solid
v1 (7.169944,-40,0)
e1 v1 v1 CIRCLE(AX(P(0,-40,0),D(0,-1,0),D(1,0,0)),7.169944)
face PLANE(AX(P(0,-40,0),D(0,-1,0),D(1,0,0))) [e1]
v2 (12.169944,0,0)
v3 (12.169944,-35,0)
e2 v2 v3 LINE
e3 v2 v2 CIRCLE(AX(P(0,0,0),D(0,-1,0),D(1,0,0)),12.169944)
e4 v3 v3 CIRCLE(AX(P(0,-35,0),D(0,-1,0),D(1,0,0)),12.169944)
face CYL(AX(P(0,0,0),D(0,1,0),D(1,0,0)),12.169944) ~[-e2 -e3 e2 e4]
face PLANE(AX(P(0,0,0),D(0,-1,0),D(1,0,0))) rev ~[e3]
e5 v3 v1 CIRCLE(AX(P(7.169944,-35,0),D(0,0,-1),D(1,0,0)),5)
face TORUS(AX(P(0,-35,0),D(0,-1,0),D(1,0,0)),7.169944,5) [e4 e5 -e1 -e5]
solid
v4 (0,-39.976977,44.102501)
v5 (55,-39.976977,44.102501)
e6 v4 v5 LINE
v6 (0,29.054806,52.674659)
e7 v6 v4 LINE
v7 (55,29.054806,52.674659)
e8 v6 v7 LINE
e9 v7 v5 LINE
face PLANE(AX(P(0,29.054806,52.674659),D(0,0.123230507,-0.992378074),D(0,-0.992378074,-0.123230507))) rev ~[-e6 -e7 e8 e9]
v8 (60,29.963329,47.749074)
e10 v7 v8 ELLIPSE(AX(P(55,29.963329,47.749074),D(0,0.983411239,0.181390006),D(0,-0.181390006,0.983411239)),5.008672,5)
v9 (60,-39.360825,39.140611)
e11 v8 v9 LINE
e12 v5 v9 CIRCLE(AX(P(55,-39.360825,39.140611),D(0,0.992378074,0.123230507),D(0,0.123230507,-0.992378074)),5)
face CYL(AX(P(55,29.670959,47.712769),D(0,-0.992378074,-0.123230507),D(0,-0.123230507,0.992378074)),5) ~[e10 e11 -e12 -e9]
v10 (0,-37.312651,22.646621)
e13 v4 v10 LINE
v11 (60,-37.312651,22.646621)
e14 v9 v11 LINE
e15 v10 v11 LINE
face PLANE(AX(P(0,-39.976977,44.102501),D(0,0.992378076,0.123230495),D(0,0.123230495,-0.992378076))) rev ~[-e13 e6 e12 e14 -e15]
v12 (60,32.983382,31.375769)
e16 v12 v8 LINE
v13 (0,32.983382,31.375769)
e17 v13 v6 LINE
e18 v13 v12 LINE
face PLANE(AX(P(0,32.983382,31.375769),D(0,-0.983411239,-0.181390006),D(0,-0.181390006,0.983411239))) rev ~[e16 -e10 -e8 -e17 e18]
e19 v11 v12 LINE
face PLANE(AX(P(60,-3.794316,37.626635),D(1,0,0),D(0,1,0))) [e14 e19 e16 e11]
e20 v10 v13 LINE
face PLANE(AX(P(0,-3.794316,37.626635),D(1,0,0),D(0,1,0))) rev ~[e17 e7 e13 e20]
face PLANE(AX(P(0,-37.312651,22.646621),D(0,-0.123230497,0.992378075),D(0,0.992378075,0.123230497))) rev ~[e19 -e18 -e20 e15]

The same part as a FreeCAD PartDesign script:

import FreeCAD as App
import Part
import Sketcher


def edges_at(feature, points):
    """Names of the edges that pass closest to the given points."""
    edges = feature.Shape.Edges
    near = lambda p: min(range(len(edges)), key=lambda i: edges[i].distToShape(Part.Vertex(*p))[0])
    return sorted({f"Edge{near(p) + 1}" for p in points})


def add_polygon(sketch, points):
    """Adds a closed chain of lines whose ends are joined by coincident constraints."""
    first, n = sketch.GeometryCount, len(points)
    for a, b in zip(points, points[1:] + points[:1]):
        sketch.addGeometry(Part.LineSegment(App.Vector(*a, 0), App.Vector(*b, 0)), False)
    for i in range(n):
        sketch.addConstraint(Sketcher.Constraint("Coincident", first + i, 2, first + (i + 1) % n, 1))

doc = App.newDocument("Part")
body = doc.addObject("PartDesign::Body", "Body")

sketch1 = doc.addObject("Sketcher::SketchObject", "Sketch")
body.addObject(sketch1)
sketch1.AttachmentSupport = (doc.XZ_Plane, [""])
sketch1.MapMode = "FlatFace"
sketch1.addGeometry(Part.Circle(App.Vector(0, 0, 0), App.Vector(0, 0, 1), 12.169944), False)
sketch1.addConstraint([
    Sketcher.Constraint("Coincident", 0, 3, -1, 1),
    Sketcher.Constraint("Diameter", 0, 24.339888),
])
pad1 = doc.addObject("PartDesign::Pad", "Pad")
body.addObject(pad1)
pad1.Profile = sketch1
pad1.Length = 40
doc.recompute()

fillet = doc.addObject("PartDesign::Fillet", "Fillet")
body.addObject(fillet)
fillet.Base = (pad1, edges_at(pad1, [(-12.17, -40, 0)]))
fillet.Radius = 5
body2 = doc.addObject("PartDesign::Body", "Body001")

sketch2 = doc.addObject("Sketcher::SketchObject", "Sketch001")
body2.addObject(sketch2)
sketch2.AttachmentSupport = (doc.getObject("YZ_Plane001"), [""])
sketch2.MapMode = "FlatFace"
add_polygon(sketch2, [(29.054806, 52.674659), (-39.976977, 44.102501), (-37.312651, 22.646621), (32.983382, 31.375769)])
sketch2.addConstraint([
    Sketcher.Constraint("Perpendicular", 0, 1),
    Sketcher.Constraint("Perpendicular", 1, 2),
    Sketcher.Constraint("DistanceY", -1, 1, 0, 2, 44.102501),
    Sketcher.Constraint("Distance", 0, 69.561979),
    Sketcher.Constraint("Distance", 1, 21.620671),
    Sketcher.Constraint("Distance", 2, 70.835939),
    Sketcher.Constraint("DistanceX", 1, 2, -1, 1, 37.312651),
    Sketcher.Constraint("DistanceY", -1, 1, 1, 2, 22.646621),
])
pad2 = doc.addObject("PartDesign::Pad", "Pad001")
body2.addObject(pad2)
pad2.Profile = sketch2
pad2.Length = 60
doc.recompute()

fillet2 = doc.addObject("PartDesign::Fillet", "Fillet001")
body2.addObject(fillet2)
fillet2.Base = (pad2, edges_at(pad2, [(60, -5.461, 48.389)]))
fillet2.Radius = 5

doc.recompute()
